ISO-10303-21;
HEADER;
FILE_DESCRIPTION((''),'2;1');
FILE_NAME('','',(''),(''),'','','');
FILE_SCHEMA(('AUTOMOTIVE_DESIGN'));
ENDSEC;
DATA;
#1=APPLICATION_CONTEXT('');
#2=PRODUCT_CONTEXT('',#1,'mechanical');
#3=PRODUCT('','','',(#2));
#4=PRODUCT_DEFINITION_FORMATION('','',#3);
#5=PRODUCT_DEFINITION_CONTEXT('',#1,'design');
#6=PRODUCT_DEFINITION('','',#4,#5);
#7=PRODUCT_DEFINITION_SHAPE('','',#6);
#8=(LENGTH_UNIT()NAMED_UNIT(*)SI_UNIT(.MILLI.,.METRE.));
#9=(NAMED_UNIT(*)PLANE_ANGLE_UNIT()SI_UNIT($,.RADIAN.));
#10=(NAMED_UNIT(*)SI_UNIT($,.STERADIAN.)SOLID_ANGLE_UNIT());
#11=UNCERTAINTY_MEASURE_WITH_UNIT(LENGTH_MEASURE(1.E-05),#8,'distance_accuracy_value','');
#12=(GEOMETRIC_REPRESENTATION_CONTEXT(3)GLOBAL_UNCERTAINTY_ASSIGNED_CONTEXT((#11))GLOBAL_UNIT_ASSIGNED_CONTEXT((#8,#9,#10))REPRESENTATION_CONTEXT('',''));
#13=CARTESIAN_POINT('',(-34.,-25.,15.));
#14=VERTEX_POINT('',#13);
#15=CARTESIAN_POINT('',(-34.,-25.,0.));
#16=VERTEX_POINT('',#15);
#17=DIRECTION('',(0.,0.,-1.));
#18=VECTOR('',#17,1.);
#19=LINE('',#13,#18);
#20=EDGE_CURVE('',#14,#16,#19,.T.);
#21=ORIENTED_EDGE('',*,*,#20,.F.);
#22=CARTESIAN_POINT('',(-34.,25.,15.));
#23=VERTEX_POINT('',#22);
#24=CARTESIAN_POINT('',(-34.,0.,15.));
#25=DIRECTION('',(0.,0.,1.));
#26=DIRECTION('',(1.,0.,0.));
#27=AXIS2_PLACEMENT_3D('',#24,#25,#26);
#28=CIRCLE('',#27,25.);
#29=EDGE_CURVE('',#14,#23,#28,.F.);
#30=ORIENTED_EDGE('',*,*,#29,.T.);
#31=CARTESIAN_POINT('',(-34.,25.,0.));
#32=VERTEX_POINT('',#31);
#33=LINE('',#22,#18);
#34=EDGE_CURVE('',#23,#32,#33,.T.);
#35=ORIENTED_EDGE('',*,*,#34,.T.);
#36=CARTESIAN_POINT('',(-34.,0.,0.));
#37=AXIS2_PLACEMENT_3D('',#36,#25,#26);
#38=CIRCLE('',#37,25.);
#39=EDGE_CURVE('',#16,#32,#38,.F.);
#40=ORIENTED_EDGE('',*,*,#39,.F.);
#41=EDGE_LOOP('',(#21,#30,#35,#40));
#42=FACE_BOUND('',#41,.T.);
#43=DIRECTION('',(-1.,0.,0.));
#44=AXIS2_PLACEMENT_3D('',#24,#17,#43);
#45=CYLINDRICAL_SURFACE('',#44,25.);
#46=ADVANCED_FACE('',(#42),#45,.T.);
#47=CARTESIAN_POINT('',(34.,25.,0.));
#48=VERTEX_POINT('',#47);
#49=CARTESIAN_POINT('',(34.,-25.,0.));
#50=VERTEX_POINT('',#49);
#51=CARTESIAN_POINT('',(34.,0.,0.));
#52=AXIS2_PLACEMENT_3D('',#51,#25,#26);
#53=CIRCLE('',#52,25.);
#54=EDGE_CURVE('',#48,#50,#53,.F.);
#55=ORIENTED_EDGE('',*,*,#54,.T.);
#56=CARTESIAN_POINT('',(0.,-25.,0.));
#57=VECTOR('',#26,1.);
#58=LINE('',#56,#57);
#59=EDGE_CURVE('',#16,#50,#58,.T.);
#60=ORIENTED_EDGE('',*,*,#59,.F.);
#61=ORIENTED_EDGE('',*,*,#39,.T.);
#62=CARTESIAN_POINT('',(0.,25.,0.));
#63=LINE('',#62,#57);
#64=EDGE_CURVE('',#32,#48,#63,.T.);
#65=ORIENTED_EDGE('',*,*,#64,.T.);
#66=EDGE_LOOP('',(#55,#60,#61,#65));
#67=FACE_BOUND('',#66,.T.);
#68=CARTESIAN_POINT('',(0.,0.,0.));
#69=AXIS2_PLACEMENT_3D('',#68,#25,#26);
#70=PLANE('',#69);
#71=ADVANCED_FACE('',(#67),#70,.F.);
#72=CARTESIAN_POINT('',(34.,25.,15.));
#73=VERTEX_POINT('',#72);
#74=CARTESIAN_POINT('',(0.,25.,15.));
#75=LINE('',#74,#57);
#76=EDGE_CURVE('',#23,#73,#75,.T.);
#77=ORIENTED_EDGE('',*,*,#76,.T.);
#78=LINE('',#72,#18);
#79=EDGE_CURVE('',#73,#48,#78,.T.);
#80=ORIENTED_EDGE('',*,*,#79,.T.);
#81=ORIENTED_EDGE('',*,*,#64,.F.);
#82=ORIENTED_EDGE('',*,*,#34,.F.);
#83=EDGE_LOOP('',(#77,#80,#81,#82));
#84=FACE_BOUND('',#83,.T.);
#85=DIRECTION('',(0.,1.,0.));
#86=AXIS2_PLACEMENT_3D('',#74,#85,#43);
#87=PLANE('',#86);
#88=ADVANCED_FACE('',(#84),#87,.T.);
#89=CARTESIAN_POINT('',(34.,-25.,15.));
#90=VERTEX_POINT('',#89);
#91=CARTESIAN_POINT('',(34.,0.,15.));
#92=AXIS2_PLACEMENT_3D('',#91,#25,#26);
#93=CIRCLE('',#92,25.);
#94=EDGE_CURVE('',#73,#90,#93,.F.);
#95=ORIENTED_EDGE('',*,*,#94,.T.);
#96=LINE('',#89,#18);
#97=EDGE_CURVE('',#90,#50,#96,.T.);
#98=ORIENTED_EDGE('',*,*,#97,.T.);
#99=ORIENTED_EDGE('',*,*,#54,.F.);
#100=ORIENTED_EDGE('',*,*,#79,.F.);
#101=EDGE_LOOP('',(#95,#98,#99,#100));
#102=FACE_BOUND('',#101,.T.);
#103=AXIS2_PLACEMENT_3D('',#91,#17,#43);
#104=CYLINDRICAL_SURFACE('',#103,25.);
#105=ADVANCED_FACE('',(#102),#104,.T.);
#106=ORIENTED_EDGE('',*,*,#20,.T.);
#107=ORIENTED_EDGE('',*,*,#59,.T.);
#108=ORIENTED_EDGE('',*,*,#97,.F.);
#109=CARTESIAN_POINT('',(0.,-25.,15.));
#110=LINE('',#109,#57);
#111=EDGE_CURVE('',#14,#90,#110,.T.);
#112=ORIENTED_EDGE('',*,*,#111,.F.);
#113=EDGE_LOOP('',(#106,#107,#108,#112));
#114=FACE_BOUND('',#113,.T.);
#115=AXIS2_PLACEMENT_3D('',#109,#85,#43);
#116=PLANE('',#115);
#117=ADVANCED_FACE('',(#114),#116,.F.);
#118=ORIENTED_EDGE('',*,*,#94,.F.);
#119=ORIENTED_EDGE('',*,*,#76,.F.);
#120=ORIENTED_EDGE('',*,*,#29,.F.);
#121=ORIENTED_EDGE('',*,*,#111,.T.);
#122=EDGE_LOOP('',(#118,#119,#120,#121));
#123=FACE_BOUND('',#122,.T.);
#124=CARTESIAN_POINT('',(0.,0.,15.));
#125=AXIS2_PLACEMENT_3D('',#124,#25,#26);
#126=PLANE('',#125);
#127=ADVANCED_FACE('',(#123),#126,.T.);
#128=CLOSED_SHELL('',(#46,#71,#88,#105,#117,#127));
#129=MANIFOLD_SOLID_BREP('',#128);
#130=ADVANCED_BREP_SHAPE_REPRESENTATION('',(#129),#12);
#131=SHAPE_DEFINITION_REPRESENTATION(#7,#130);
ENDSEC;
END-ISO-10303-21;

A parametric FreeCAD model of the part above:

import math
import FreeCAD as App
import Part
import Sketcher
from FreeCAD import Vector

doc = App.newDocument("Part")
params = doc.addObject("Spreadsheet::Sheet", "Params")
for row, (alias, value) in enumerate([
    ("sketch1_radius", "25 mm"),
    ("sketch1_width", "68 mm"),
    ("pad1_length", "15 mm"),
], start=1):
    params.set(f"A{row}", alias)
    params.set(f"B{row}", "=" + value)
    params.setAlias(f"B{row}", alias)

body = doc.addObject("PartDesign::Body", "Body")

sketch1 = body.newObject("Sketcher::SketchObject", "Sketch")
sketch1.AttachmentSupport = (doc.getObject("XY_Plane"), [""])
sketch1.MapMode = "FlatFace"
sketch1.addGeometry(Part.LineSegment(Vector(-34, -25, 0), Vector(34, -25, 0)), False)
sketch1.addGeometry(Part.ArcOfCircle(Part.Circle(Vector(34, 0, 0), Vector(0, 0, 1), 25), math.radians(-90), math.radians(90)), False)
sketch1.addGeometry(Part.LineSegment(Vector(34, 25, 0), Vector(-34, 25, 0)), False)
sketch1.addGeometry(Part.ArcOfCircle(Part.Circle(Vector(-34, 0, 0), Vector(0, 0, 1), 25), math.radians(90), math.radians(270)), False)
sketch1.addConstraint(Sketcher.Constraint("Tangent", 0, 2, 1, 1))
sketch1.addConstraint(Sketcher.Constraint("Tangent", 1, 2, 2, 1))
sketch1.addConstraint(Sketcher.Constraint("Tangent", 2, 2, 3, 1))
sketch1.addConstraint(Sketcher.Constraint("Tangent", 3, 2, 0, 1))
sketch1.addConstraint(Sketcher.Constraint("Horizontal", 0))
sketch1.addConstraint(Sketcher.Constraint("Horizontal", 2))
sketch1.addConstraint(Sketcher.Constraint("Symmetric", 1, 3, 3, 3, -1, 1))
sketch1.addConstraint(Sketcher.Constraint("Radius", 1, 25.0))
sketch1.addConstraint(Sketcher.Constraint("DistanceX", 0, 1, 0, 2, 68.0))
sketch1.setExpression("Constraints[7]", "Params.sketch1_radius")
sketch1.setExpression("Constraints[8]", "Params.sketch1_width")
pad1 = body.newObject("PartDesign::Pad", "Pad")
pad1.Profile = sketch1
pad1.setExpression("Length", "Params.pad1_length")

doc.recompute()
